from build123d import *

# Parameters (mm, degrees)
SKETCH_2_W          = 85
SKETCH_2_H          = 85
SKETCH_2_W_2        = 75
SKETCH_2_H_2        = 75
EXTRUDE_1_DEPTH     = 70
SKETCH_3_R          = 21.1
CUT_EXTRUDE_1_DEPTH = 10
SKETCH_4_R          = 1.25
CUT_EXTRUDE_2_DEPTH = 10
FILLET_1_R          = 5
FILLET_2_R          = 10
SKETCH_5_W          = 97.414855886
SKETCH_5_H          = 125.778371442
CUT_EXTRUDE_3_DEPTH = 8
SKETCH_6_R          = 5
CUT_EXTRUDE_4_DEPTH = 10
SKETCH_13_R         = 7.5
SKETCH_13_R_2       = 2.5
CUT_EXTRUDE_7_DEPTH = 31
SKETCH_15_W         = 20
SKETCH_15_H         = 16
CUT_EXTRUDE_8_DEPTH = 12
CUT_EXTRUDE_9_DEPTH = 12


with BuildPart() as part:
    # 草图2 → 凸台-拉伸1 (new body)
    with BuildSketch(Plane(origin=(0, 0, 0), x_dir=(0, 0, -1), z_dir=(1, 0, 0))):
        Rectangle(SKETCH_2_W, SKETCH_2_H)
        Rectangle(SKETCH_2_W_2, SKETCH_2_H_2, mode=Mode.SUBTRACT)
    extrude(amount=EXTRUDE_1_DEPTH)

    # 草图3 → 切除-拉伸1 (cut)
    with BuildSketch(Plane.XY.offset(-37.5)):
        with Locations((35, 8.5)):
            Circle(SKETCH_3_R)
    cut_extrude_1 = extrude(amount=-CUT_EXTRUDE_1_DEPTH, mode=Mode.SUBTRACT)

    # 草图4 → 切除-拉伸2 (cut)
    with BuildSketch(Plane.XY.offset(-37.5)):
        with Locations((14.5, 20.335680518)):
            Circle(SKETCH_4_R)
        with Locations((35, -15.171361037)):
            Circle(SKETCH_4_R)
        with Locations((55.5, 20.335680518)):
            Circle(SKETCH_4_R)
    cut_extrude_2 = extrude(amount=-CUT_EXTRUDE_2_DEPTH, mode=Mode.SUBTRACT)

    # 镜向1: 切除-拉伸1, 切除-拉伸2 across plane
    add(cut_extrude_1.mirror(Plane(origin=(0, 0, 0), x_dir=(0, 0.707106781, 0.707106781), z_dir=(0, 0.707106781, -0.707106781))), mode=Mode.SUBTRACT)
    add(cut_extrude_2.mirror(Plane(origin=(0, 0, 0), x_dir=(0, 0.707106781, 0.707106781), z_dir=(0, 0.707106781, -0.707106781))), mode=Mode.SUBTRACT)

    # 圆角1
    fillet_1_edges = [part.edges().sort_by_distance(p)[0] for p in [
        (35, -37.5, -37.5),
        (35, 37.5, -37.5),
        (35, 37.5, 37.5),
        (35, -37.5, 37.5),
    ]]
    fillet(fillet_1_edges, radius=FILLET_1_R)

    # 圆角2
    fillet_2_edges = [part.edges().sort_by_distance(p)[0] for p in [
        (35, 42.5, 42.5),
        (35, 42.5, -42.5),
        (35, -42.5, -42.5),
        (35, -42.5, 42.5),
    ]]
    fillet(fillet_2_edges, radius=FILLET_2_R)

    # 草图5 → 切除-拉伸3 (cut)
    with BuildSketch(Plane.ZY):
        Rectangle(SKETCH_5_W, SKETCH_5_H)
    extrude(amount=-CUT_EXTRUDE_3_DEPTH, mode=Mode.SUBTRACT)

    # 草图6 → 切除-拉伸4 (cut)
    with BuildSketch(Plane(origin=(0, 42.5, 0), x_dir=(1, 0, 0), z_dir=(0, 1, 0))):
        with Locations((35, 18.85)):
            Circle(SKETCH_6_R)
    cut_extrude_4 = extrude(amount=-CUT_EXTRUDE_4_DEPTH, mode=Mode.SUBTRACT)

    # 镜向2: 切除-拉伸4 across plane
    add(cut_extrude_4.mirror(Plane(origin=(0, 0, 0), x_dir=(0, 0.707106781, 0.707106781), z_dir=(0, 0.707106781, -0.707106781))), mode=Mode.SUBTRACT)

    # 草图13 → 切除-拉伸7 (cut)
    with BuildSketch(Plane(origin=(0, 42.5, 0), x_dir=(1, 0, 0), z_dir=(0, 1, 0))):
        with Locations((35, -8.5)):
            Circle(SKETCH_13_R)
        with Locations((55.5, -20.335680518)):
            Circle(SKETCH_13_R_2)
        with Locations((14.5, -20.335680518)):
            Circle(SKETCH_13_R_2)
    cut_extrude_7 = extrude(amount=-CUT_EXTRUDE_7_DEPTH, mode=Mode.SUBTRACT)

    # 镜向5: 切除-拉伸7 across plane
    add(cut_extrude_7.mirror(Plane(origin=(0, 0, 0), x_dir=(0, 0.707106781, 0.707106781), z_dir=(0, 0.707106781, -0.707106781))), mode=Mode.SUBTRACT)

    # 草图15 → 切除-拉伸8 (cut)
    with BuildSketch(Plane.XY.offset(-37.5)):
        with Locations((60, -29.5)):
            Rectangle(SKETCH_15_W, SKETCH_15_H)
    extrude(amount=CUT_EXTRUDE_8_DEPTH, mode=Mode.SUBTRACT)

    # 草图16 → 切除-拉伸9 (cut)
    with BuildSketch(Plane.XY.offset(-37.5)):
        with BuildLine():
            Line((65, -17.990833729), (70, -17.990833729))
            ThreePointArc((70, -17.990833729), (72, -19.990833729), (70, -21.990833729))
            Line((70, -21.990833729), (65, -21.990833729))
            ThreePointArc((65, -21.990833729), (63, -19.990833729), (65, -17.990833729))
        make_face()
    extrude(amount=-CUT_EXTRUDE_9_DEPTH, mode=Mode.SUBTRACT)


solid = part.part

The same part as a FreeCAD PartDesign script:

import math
import FreeCAD as App
import Part
import Sketcher
from FreeCAD import Vector


def edges_at(feature, points):
    """Names of the edges that pass closest to the given points."""
    edges = feature.Shape.Edges
    near = lambda p: min(range(len(edges)), key=lambda i: edges[i].distToShape(Part.Vertex(*p))[0])
    return sorted({f"Edge{near(p) + 1}" for p in points})


def add_polygon(sketch, points):
    """Adds a closed chain of lines whose ends are joined by coincident constraints."""
    first, n = sketch.GeometryCount, len(points)
    for a, b in zip(points, points[1:] + points[:1]):
        sketch.addGeometry(Part.LineSegment(App.Vector(*a, 0), App.Vector(*b, 0)), False)
    for i in range(n):
        sketch.addConstraint(Sketcher.Constraint("Coincident", first + i, 2, first + (i + 1) % n, 1))

doc = App.newDocument("Part")
body = doc.addObject("PartDesign::Body", "Body")

# Sketch on YZ plane
sketch1 = body.newObject("Sketcher::SketchObject", "Sketch")
sketch1.AttachmentSupport = (doc.getObject("YZ_Plane"), [""])
sketch1.MapMode = "FlatFace"
add_polygon(sketch1, [(42.5, 42.5), (-42.5, 42.5), (-42.5, -42.5), (42.5, -42.5)])  # lines 0-3
add_polygon(sketch1, [(-37.5, -37.5), (-37.5, 37.5), (37.5, 37.5), (37.5, -37.5)])  # lines 4-7
sketch1.addConstraint(Sketcher.Constraint("Horizontal", 0))
sketch1.addConstraint(Sketcher.Constraint("Vertical", 1))
sketch1.addConstraint(Sketcher.Constraint("Horizontal", 2))
sketch1.addConstraint(Sketcher.Constraint("Vertical", 3))
sketch1.addConstraint(Sketcher.Constraint("Vertical", 4))
sketch1.addConstraint(Sketcher.Constraint("Horizontal", 5))
sketch1.addConstraint(Sketcher.Constraint("Vertical", 6))
sketch1.addConstraint(Sketcher.Constraint("Horizontal", 7))
sketch1.addConstraint(Sketcher.Constraint("Symmetric", 0, 2, 2, 2, -1, 1))
sketch1.addConstraint(Sketcher.Constraint("Symmetric", 4, 2, 6, 2, -1, 1))
sketch1.addConstraint(Sketcher.Constraint("Equal", 2, 1))
sketch1.addConstraint(Sketcher.Constraint("Equal", 7, 4))
sketch1.addConstraint(Sketcher.Constraint("DistanceX", 0, 2, 0, 1, 85.0))
sketch1.addConstraint(Sketcher.Constraint("DistanceX", 5, 1, 5, 2, 75.0))
pad1 = body.newObject("PartDesign::Pad", "Pad")
pad1.Profile = sketch1
pad1.Length = 70

# Sketch on XY plane
sketch2 = body.newObject("Sketcher::SketchObject", "Sketch001")
sketch2.AttachmentSupport = (doc.getObject("XY_Plane"), [""])
sketch2.MapMode = "FlatFace"
sketch2.AttachmentOffset = App.Placement(Vector(0, 0, -37.5), App.Rotation())
sketch2.addGeometry(Part.Circle(Vector(35, 8.5, 0), Vector(0, 0, 1), 21.1), False)
sketch2.addConstraint(Sketcher.Constraint("Diameter", 0, 42.2))
sketch2.addConstraint(Sketcher.Constraint("DistanceX", -1, 1, 0, 3, 35.0))
sketch2.addConstraint(Sketcher.Constraint("DistanceY", -1, 1, 0, 3, 8.5))
pocket1 = body.newObject("PartDesign::Pocket", "Pocket")
pocket1.Profile = sketch2
pocket1.Length = 10

# Sketch on XY plane
sketch3 = body.newObject("Sketcher::SketchObject", "Sketch002")
sketch3.AttachmentSupport = (doc.getObject("XY_Plane"), [""])
sketch3.MapMode = "FlatFace"
sketch3.AttachmentOffset = App.Placement(Vector(0, 0, -37.5), App.Rotation())
sketch3.addGeometry(Part.Circle(Vector(14.5, 20.335681, 0), Vector(0, 0, 1), 1.25), False)
sketch3.addGeometry(Part.Circle(Vector(35, -15.171361, 0), Vector(0, 0, 1), 1.25), False)
sketch3.addGeometry(Part.Circle(Vector(55.5, 20.335681, 0), Vector(0, 0, 1), 1.25), False)
sketch3.addConstraint(Sketcher.Constraint("Equal", 0, 1))
sketch3.addConstraint(Sketcher.Constraint("Equal", 1, 2))
sketch3.addConstraint(Sketcher.Constraint("Horizontal", 0, 3, 2, 3))
sketch3.addConstraint(Sketcher.Constraint("Diameter", 0, 2.5))
sketch3.addConstraint(Sketcher.Constraint("DistanceX", -1, 1, 1, 3, 35.0))
sketch3.addConstraint(Sketcher.Constraint("DistanceX", 0, 3, 2, 3, 41.0))
sketch3.addConstraint(Sketcher.Constraint("DistanceX", -1, 1, 0, 3, 14.5))
sketch3.addConstraint(Sketcher.Constraint("DistanceY", -1, 1, 0, 3, 20.335681))
sketch3.addConstraint(Sketcher.Constraint("DistanceY", 1, 3, -1, 1, 15.171361))
pocket2 = body.newObject("PartDesign::Pocket", "Pocket001")
pocket2.Profile = sketch3
pocket2.Length = 10
doc.recompute()

datumplane = body.newObject("PartDesign::Plane", "DatumPlane")
datumplane.Placement = App.Placement(Vector(0, 0, 0), App.Rotation(Vector(0, -0.707106781, -0.707106781), Vector(-1, 0, 0), Vector(0, 0.707106781, -0.707106781), "ZXY"))
mirrored = body.newObject("PartDesign::Mirrored", "Mirrored")
mirrored.Originals = [pocket1, pocket2]
mirrored.MirrorPlane = (datumplane, [""])
body.Tip = mirrored
doc.recompute()

fillet = body.newObject("PartDesign::Fillet", "Fillet")
fillet.Base = (mirrored, edges_at(mirrored, [
    (35, -37.5, -37.5),
    (35, 37.5, -37.5),
    (35, 37.5, 37.5),
    (35, -37.5, 37.5),
]))
fillet.Radius = 5
doc.recompute()

fillet2 = body.newObject("PartDesign::Fillet", "Fillet001")
fillet2.Base = (fillet, edges_at(fillet, [
    (35, 42.5, 42.5),
    (35, 42.5, -42.5),
    (35, -42.5, -42.5),
    (35, -42.5, 42.5),
]))
fillet2.Radius = 10

# Sketch on YZ plane
sketch4 = body.newObject("Sketcher::SketchObject", "Sketch003")
sketch4.AttachmentSupport = (doc.getObject("YZ_Plane"), [""])
sketch4.MapMode = "FlatFace"
add_polygon(sketch4, [(62.889186, -48.707428), (-62.889186, -48.707428), (-62.889186, 48.707428), (62.889186, 48.707428)])  # lines 0-3
sketch4.addConstraint(Sketcher.Constraint("Horizontal", 0))
sketch4.addConstraint(Sketcher.Constraint("Vertical", 1))
sketch4.addConstraint(Sketcher.Constraint("Horizontal", 2))
sketch4.addConstraint(Sketcher.Constraint("Vertical", 3))
sketch4.addConstraint(Sketcher.Constraint("Symmetric", 0, 2, 2, 2, -1, 1))
sketch4.addConstraint(Sketcher.Constraint("DistanceX", 0, 2, 0, 1, 125.778371))
sketch4.addConstraint(Sketcher.Constraint("DistanceY", 1, 1, 1, 2, 97.414856))
pocket3 = body.newObject("PartDesign::Pocket", "Pocket002")
pocket3.Profile = sketch4
pocket3.Length = 8
pocket3.Reversed = True

# Sketch on XZ plane
sketch5 = body.newObject("Sketcher::SketchObject", "Sketch004")
sketch5.AttachmentSupport = (doc.getObject("XZ_Plane"), [""])
sketch5.MapMode = "FlatFace"
sketch5.AttachmentOffset = App.Placement(Vector(0, 0, -42.5), App.Rotation())
sketch5.addGeometry(Part.Circle(Vector(35, -18.85, 0), Vector(0, 0, 1), 5), False)
sketch5.addConstraint(Sketcher.Constraint("Diameter", 0, 10.0))
sketch5.addConstraint(Sketcher.Constraint("DistanceX", -1, 1, 0, 3, 35.0))
sketch5.addConstraint(Sketcher.Constraint("DistanceY", 0, 3, -1, 1, 18.85))
pocket4 = body.newObject("PartDesign::Pocket", "Pocket003")
pocket4.Profile = sketch5
pocket4.Length = 10
pocket4.Reversed = True
doc.recompute()

datumplane2 = body.newObject("PartDesign::Plane", "DatumPlane001")
datumplane2.Placement = App.Placement(Vector(0, 0, 0), App.Rotation(Vector(0, -0.707106781, -0.707106781), Vector(-1, 0, 0), Vector(0, 0.707106781, -0.707106781), "ZXY"))
mirrored2 = body.newObject("PartDesign::Mirrored", "Mirrored001")
mirrored2.Originals = [pocket4]
mirrored2.MirrorPlane = (datumplane2, [""])
body.Tip = mirrored2

# Sketch on XZ plane
sketch6 = body.newObject("Sketcher::SketchObject", "Sketch005")
sketch6.AttachmentSupport = (doc.getObject("XZ_Plane"), [""])
sketch6.MapMode = "FlatFace"
sketch6.AttachmentOffset = App.Placement(Vector(0, 0, -42.5), App.Rotation())
sketch6.addGeometry(Part.Circle(Vector(35, 8.5, 0), Vector(0, 0, 1), 7.5), False)
sketch6.addGeometry(Part.Circle(Vector(55.5, 20.335681, 0), Vector(0, 0, 1), 2.5), False)
sketch6.addGeometry(Part.Circle(Vector(14.5, 20.335681, 0), Vector(0, 0, 1), 2.5), False)
sketch6.addConstraint(Sketcher.Constraint("Equal", 1, 2))
sketch6.addConstraint(Sketcher.Constraint("Horizontal", 1, 3, 2, 3))
sketch6.addConstraint(Sketcher.Constraint("Diameter", 0, 15.0))
sketch6.addConstraint(Sketcher.Constraint("Diameter", 1, 5.0))
sketch6.addConstraint(Sketcher.Constraint("DistanceX", -1, 1, 0, 3, 35.0))
sketch6.addConstraint(Sketcher.Constraint("DistanceX", 2, 3, 1, 3, 41.0))
sketch6.addConstraint(Sketcher.Constraint("DistanceY", -1, 1, 0, 3, 8.5))
sketch6.addConstraint(Sketcher.Constraint("DistanceX", -1, 1, 1, 3, 55.5))
sketch6.addConstraint(Sketcher.Constraint("DistanceY", -1, 1, 1, 3, 20.335681))
pocket5 = body.newObject("PartDesign::Pocket", "Pocket004")
pocket5.Profile = sketch6
pocket5.Length = 31
pocket5.Reversed = True
doc.recompute()

datumplane3 = body.newObject("PartDesign::Plane", "DatumPlane002")
datumplane3.Placement = App.Placement(Vector(0, 0, 0), App.Rotation(Vector(0, -0.707106781, -0.707106781), Vector(-1, 0, 0), Vector(0, 0.707106781, -0.707106781), "ZXY"))
mirrored3 = body.newObject("PartDesign::Mirrored", "Mirrored002")
mirrored3.Originals = [pocket5]
mirrored3.MirrorPlane = (datumplane3, [""])
body.Tip = mirrored3

# Sketch on XY plane
sketch7 = body.newObject("Sketcher::SketchObject", "Sketch006")
sketch7.AttachmentSupport = (doc.getObject("XY_Plane"), [""])
sketch7.MapMode = "FlatFace"
sketch7.AttachmentOffset = App.Placement(Vector(0, 0, -37.5), App.Rotation())
add_polygon(sketch7, [(50, -21.5), (50, -37.5), (70, -37.5), (70, -21.5)])  # lines 0-3
sketch7.addConstraint(Sketcher.Constraint("Vertical", 0))
sketch7.addConstraint(Sketcher.Constraint("Horizontal", 1))
sketch7.addConstraint(Sketcher.Constraint("Vertical", 2))
sketch7.addConstraint(Sketcher.Constraint("Horizontal", 3))
sketch7.addConstraint(Sketcher.Constraint("DistanceX", 1, 1, 1, 2, 20.0))
sketch7.addConstraint(Sketcher.Constraint("DistanceY", 0, 2, 0, 1, 16.0))
sketch7.addConstraint(Sketcher.Constraint("DistanceX", -1, 1, 0, 2, 50.0))
sketch7.addConstraint(Sketcher.Constraint("DistanceY", 0, 2, -1, 1, 37.5))
pocket6 = body.newObject("PartDesign::Pocket", "Pocket005")
pocket6.Profile = sketch7
pocket6.Length = 12
pocket6.Reversed = True

# Sketch on XY plane
sketch8 = body.newObject("Sketcher::SketchObject", "Sketch007")
sketch8.AttachmentSupport = (doc.getObject("XY_Plane"), [""])
sketch8.MapMode = "FlatFace"
sketch8.AttachmentOffset = App.Placement(Vector(0, 0, -37.5), App.Rotation())
sketch8.addGeometry(Part.LineSegment(Vector(70, -17.990834, 0), Vector(65, -17.990834, 0)), False)
sketch8.addGeometry(Part.ArcOfCircle(Part.Circle(Vector(65, -19.990834, 0), Vector(0, 0, 1), 2), math.radians(90), math.radians(270)), False)
sketch8.addGeometry(Part.LineSegment(Vector(65, -21.990834, 0), Vector(70, -21.990834, 0)), False)
sketch8.addGeometry(Part.ArcOfCircle(Part.Circle(Vector(70, -19.990834, 0), Vector(0, 0, 1), 2), math.radians(-90), math.radians(90)), False)
sketch8.addConstraint(Sketcher.Constraint("Tangent", 0, 2, 1, 1))
sketch8.addConstraint(Sketcher.Constraint("Tangent", 1, 2, 2, 1))
sketch8.addConstraint(Sketcher.Constraint("Tangent", 2, 2, 3, 1))
sketch8.addConstraint(Sketcher.Constraint("Tangent", 3, 2, 0, 1))
sketch8.addConstraint(Sketcher.Constraint("Horizontal", 0))
sketch8.addConstraint(Sketcher.Constraint("Horizontal", 2))
sketch8.addConstraint(Sketcher.Constraint("Radius", 1, 2.0))
sketch8.addConstraint(Sketcher.Constraint("DistanceX", 0, 2, 0, 1, 5.0))
sketch8.addConstraint(Sketcher.Constraint("DistanceX", -1, 1, 1, 3, 65.0))
sketch8.addConstraint(Sketcher.Constraint("DistanceY", 1, 3, -1, 1, 19.990834))
pocket7 = body.newObject("PartDesign::Pocket", "Pocket006")
pocket7.Profile = sketch8
pocket7.Length = 12

doc.recompute()
